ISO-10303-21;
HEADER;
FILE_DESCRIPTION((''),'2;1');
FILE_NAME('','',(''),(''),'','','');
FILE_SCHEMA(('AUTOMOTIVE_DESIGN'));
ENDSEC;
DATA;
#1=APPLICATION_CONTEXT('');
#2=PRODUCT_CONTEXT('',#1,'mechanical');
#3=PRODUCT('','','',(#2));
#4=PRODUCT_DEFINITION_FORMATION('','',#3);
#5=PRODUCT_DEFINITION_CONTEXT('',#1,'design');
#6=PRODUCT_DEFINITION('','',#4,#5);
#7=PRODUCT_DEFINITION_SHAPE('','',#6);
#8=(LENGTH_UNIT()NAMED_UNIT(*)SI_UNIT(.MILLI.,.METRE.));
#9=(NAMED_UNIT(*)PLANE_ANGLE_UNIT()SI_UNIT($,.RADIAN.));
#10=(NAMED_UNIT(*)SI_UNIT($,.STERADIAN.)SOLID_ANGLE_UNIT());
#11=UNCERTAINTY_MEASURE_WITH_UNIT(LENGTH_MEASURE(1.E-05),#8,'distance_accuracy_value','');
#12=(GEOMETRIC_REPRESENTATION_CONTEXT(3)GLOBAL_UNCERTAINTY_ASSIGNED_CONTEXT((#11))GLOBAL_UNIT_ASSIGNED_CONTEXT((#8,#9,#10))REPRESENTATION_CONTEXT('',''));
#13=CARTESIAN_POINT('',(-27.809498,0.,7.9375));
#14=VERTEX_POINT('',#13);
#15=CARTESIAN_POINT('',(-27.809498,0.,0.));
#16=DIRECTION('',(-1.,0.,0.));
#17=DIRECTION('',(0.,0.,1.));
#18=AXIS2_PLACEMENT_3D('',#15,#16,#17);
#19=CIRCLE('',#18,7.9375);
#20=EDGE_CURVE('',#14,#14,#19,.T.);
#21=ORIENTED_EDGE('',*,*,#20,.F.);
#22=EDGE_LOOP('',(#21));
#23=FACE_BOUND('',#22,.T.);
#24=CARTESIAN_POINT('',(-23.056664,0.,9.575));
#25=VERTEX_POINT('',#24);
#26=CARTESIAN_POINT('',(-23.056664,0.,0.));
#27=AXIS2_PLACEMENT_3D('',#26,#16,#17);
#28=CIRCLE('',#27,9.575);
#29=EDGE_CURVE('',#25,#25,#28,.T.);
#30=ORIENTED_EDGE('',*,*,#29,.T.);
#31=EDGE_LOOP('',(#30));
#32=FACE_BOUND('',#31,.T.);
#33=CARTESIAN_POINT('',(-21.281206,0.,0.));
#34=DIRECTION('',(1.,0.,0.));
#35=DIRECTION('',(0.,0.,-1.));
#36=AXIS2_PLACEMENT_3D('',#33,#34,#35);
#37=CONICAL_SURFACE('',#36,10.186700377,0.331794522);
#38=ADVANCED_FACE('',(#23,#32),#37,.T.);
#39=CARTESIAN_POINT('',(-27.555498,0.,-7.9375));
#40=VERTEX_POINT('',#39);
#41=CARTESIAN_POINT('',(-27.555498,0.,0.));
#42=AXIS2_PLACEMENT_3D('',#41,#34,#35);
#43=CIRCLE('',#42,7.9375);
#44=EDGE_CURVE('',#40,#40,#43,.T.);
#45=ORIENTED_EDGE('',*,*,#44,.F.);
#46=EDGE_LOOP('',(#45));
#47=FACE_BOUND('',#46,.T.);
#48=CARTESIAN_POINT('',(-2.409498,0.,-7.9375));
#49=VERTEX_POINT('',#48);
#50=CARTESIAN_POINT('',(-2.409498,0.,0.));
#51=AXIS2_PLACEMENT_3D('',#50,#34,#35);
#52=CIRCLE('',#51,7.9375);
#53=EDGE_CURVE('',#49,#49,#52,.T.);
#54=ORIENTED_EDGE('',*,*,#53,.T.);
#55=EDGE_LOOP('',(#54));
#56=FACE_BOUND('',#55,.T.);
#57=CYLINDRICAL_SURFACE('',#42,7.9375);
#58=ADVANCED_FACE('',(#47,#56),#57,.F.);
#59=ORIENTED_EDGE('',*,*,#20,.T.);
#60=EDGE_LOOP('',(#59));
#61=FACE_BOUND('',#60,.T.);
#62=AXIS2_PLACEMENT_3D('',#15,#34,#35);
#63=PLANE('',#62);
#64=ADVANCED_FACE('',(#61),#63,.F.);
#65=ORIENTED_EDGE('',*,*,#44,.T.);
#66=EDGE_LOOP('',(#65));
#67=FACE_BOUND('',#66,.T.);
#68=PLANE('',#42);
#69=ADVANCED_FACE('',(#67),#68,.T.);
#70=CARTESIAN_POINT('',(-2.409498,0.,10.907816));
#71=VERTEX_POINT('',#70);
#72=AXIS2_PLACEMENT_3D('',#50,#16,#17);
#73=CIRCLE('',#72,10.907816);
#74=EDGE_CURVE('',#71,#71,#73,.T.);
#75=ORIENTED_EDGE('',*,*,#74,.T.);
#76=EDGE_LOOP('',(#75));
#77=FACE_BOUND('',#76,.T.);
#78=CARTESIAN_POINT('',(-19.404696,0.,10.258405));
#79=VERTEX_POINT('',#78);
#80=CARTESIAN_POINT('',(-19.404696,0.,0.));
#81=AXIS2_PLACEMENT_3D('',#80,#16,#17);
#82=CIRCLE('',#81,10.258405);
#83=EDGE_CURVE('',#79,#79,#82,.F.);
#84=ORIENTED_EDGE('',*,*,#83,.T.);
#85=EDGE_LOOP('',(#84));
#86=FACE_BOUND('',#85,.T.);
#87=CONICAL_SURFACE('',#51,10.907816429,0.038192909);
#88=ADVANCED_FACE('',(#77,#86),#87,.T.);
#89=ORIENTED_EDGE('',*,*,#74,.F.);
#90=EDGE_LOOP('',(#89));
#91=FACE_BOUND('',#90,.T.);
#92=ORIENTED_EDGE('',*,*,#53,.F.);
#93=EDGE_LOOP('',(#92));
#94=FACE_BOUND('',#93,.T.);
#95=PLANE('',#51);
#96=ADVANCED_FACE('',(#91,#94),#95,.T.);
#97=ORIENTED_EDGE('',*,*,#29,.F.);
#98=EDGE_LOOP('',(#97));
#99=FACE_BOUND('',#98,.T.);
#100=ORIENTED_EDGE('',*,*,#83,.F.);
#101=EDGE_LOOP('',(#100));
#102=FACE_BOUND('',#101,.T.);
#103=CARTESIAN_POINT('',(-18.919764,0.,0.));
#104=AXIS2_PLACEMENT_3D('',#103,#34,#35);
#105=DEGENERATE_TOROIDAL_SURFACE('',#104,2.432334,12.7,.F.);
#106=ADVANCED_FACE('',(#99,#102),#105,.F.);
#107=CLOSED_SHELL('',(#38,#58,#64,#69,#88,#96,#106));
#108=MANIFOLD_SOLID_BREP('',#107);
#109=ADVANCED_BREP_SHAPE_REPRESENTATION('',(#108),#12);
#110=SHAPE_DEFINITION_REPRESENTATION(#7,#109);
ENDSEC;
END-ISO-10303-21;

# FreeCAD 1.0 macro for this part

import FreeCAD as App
import Part
import Sketcher
Q = App.Units.Quantity


def edges_at(feature, points):
    """Names of the edges that pass closest to the given points."""
    edges = feature.Shape.Edges
    near = lambda p: min(range(len(edges)), key=lambda i: edges[i].distToShape(Part.Vertex(*p))[0])
    return sorted({f"Edge{near(p) + 1}" for p in points})


def add_polygon(sketch, points):
    """Adds a closed chain of lines whose ends are joined by coincident constraints."""
    first, n = sketch.GeometryCount, len(points)
    for a, b in zip(points, points[1:] + points[:1]):
        sketch.addGeometry(Part.LineSegment(App.Vector(*a, 0), App.Vector(*b, 0)), False)
    for i in range(n):
        sketch.addConstraint(Sketcher.Constraint("Coincident", first + i, 2, first + (i + 1) % n, 1))

doc = App.newDocument("Part")
params = doc.addObject("Spreadsheet::Sheet", "Params")
for row, (alias, value) in enumerate([
    ("sketch1_width", "1 in"),
    ("sketch1_height", "0.3125 in"),
    ("revolution_angle", "360 deg"),
    ("sketch2_diameter", "0.625 in"),
    ("pocket1_length", "0.99 in"),
    ("fillet_radius", "0.5 in"),
], start=1):
    params.set(f"A{row}", alias)
    params.set(f"B{row}", "=" + value)
    params.setAlias(f"B{row}", alias)

body = doc.addObject("PartDesign::Body", "Body")

sketch1 = body.newObject("Sketcher::SketchObject", "Sketch")
sketch1.AttachmentSupport = (doc.getObject("XY_Plane"), [""])
sketch1.MapMode = "FlatFace"
add_polygon(sketch1, [(-27.809498, 7.9375), (-27.809498, 0), (-2.409498, 0), (-2.409498, 10.907816), (-21.281205, 10.1867)])
sketch1.addConstraint([
    Sketcher.Constraint("Vertical", 0),
    Sketcher.Constraint("Horizontal", 1),
    Sketcher.Constraint("Vertical", 2),
    Sketcher.Constraint("PointOnObject", 0, 2, -1),
    Sketcher.Constraint("DistanceX", 1, 1, 1, 2, Q("1 in")),
    Sketcher.Constraint("DistanceY", 0, 2, 0, 1, Q("0.3125 in")),
    Sketcher.Constraint("DistanceX", 0, 2, -1, 1, 27.809498),
    Sketcher.Constraint("DistanceY", -1, 1, 3, 2, 10.1867),
    Sketcher.Constraint("Distance", 3, 18.885479),
    Sketcher.Constraint("Distance", 4, 6.90489),
])
sketch1.setExpression("Constraints[9]", "Params.sketch1_width")
sketch1.setExpression("Constraints[10]", "Params.sketch1_height")
revolution = body.newObject("PartDesign::Revolution", "Revolution")
revolution.Profile = sketch1
revolution.ReferenceAxis = (sketch1, ["H_Axis"])
revolution.setExpression("Angle", "Params.revolution_angle")

sketch2 = body.newObject("Sketcher::SketchObject", "Sketch001")
sketch2.AttachmentSupport = (doc.getObject("YZ_Plane"), [""])
sketch2.MapMode = "FlatFace"
sketch2.AttachmentOffset = App.Placement(App.Vector(0, 0, -2.409498), App.Rotation())
sketch2.addGeometry(Part.Circle(App.Vector(0, 0, 0), App.Vector(0, 0, 1), 7.9375), False)
sketch2.addConstraint([
    Sketcher.Constraint("Coincident", 0, 3, -1, 1),
    Sketcher.Constraint("Diameter", 0, Q("0.625 in")),
])
sketch2.setExpression("Constraints[1]", "Params.sketch2_diameter")
pocket1 = body.newObject("PartDesign::Pocket", "Pocket")
pocket1.Profile = sketch2
pocket1.setExpression("Length", "Params.pocket1_length")
doc.recompute()

fillet = body.newObject("PartDesign::Fillet", "Fillet")
fillet.Base = (pocket1, edges_at(pocket1, [(-21.281, 0, -10.187)]))
fillet.setExpression("Radius", "Params.fillet_radius")

doc.recompute()
